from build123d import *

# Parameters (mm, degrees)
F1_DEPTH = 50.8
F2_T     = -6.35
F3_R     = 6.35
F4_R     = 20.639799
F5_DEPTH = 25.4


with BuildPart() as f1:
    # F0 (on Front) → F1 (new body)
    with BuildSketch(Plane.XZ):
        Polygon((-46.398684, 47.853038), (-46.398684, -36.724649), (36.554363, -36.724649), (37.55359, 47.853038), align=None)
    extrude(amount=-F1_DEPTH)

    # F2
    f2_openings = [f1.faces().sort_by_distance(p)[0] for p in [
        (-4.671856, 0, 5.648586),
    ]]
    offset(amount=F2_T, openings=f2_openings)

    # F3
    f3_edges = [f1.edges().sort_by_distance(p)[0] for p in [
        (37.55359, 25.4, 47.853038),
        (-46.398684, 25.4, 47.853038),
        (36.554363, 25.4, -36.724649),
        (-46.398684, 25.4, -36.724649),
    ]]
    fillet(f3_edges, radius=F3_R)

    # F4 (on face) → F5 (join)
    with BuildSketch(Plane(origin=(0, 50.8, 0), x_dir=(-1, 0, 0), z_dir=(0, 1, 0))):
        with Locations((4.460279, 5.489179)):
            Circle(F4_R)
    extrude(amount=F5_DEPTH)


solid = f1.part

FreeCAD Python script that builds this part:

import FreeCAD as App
import Part
import Sketcher

V = App.Vector
Q = App.Units.Quantity


def edges_at(feature, points):
    """Names of the edges that pass closest to the given points."""
    edges = feature.Shape.Edges
    near = lambda p: min(range(len(edges)), key=lambda i: edges[i].distToShape(Part.Vertex(*p))[0])
    return sorted({f"Edge{near(p) + 1}" for p in points})


def faces_at(feature, points):
    """Names of the faces that lie closest to the given points."""
    faces = feature.Shape.Faces
    near = lambda p: min(range(len(faces)), key=lambda i: faces[i].distToShape(Part.Vertex(*p))[0])
    return sorted({f"Face{near(p) + 1}" for p in points})

doc = App.newDocument("Part")
body = doc.addObject("PartDesign::Body", "Body")

# Sketch on XZ plane
sketch1 = body.newObject("Sketcher::SketchObject", "Sketch")
sketch1.AttachmentSupport = (doc.getObject("XZ_Plane"), [""])
sketch1.MapMode = "FlatFace"
sketch1.addGeometry(Part.LineSegment(V(-46, 48, 0), V(-46, -37, 0)), False)
sketch1.addGeometry(Part.LineSegment(V(-46, -37, 0), V(37, -37, 0)), False)
sketch1.addGeometry(Part.LineSegment(V(37, -37, 0), V(38, 48, 0)), False)
sketch1.addGeometry(Part.LineSegment(V(38, 48, 0), V(-46, 48, 0)), False)
sketch1.addConstraint(Sketcher.Constraint("Coincident", 0, 2, 1, 1))
sketch1.addConstraint(Sketcher.Constraint("Coincident", 1, 2, 2, 1))
sketch1.addConstraint(Sketcher.Constraint("Coincident", 2, 2, 3, 1))
sketch1.addConstraint(Sketcher.Constraint("Coincident", 3, 2, 0, 1))
sketch1.addConstraint(Sketcher.Constraint("Vertical", 0))
sketch1.addConstraint(Sketcher.Constraint("Horizontal", 1))
sketch1.addConstraint(Sketcher.Constraint("Horizontal", 3))
sketch1.addConstraint(Sketcher.Constraint("Distance", 2, 84.583589))
sketch1.addConstraint(Sketcher.Constraint("DistanceX", 1, 1, 1, 2, 82.953047))
sketch1.addConstraint(Sketcher.Constraint("DistanceX", 3, 2, 3, 1, 83.952274))
sketch1.addConstraint(Sketcher.Constraint("DistanceY", 0, 2, -1, 1, 36.724649))
sketch1.addConstraint(Sketcher.Constraint("DistanceX", -1, 1, 2, 2, 37.55359))
pad1 = body.newObject("PartDesign::Pad", "Pad")
pad1.Profile = sketch1
pad1.Length = Q("2 in")
pad1.Reversed = True
doc.recompute()

thickness = body.newObject("PartDesign::Thickness", "Thickness")
thickness.Base = (pad1, faces_at(pad1, [(-4.423, 0, 5.564)]))
thickness.Value = Q("0.25 in")
thickness.Reversed = True
thickness.Join = "Arc"
doc.recompute()

fillet = body.newObject("PartDesign::Fillet", "Fillet")
fillet.Base = (thickness, edges_at(thickness, [
    (37.554, 25.4, 47.853),
    (-46.399, 25.4, 47.853),
    (36.554, 25.4, -36.725),
    (-46.399, 25.4, -36.725),
]))
fillet.Radius = Q("0.25 in")

# Sketch on XZ plane
sketch2 = body.newObject("Sketcher::SketchObject", "Sketch001")
sketch2.AttachmentSupport = (doc.getObject("XZ_Plane"), [""])
sketch2.MapMode = "FlatFace"
sketch2.AttachmentOffset = App.Placement(V(0, 0, -2 * 25.4), App.Rotation())
sketch2.addGeometry(Part.Circle(V(-4, 5, 0), V(0, 0, 1), 21), False)
sketch2.addConstraint(Sketcher.Constraint("Diameter", 0, 41.279598))
sketch2.addConstraint(Sketcher.Constraint("DistanceX", 0, 3, -1, 1, 4.460279))
sketch2.addConstraint(Sketcher.Constraint("DistanceY", -1, 1, 0, 3, 5.489179))
pad2 = body.newObject("PartDesign::Pad", "Pad001")
pad2.Profile = sketch2
pad2.Length = Q("1 in")
pad2.Reversed = True

doc.recompute()
